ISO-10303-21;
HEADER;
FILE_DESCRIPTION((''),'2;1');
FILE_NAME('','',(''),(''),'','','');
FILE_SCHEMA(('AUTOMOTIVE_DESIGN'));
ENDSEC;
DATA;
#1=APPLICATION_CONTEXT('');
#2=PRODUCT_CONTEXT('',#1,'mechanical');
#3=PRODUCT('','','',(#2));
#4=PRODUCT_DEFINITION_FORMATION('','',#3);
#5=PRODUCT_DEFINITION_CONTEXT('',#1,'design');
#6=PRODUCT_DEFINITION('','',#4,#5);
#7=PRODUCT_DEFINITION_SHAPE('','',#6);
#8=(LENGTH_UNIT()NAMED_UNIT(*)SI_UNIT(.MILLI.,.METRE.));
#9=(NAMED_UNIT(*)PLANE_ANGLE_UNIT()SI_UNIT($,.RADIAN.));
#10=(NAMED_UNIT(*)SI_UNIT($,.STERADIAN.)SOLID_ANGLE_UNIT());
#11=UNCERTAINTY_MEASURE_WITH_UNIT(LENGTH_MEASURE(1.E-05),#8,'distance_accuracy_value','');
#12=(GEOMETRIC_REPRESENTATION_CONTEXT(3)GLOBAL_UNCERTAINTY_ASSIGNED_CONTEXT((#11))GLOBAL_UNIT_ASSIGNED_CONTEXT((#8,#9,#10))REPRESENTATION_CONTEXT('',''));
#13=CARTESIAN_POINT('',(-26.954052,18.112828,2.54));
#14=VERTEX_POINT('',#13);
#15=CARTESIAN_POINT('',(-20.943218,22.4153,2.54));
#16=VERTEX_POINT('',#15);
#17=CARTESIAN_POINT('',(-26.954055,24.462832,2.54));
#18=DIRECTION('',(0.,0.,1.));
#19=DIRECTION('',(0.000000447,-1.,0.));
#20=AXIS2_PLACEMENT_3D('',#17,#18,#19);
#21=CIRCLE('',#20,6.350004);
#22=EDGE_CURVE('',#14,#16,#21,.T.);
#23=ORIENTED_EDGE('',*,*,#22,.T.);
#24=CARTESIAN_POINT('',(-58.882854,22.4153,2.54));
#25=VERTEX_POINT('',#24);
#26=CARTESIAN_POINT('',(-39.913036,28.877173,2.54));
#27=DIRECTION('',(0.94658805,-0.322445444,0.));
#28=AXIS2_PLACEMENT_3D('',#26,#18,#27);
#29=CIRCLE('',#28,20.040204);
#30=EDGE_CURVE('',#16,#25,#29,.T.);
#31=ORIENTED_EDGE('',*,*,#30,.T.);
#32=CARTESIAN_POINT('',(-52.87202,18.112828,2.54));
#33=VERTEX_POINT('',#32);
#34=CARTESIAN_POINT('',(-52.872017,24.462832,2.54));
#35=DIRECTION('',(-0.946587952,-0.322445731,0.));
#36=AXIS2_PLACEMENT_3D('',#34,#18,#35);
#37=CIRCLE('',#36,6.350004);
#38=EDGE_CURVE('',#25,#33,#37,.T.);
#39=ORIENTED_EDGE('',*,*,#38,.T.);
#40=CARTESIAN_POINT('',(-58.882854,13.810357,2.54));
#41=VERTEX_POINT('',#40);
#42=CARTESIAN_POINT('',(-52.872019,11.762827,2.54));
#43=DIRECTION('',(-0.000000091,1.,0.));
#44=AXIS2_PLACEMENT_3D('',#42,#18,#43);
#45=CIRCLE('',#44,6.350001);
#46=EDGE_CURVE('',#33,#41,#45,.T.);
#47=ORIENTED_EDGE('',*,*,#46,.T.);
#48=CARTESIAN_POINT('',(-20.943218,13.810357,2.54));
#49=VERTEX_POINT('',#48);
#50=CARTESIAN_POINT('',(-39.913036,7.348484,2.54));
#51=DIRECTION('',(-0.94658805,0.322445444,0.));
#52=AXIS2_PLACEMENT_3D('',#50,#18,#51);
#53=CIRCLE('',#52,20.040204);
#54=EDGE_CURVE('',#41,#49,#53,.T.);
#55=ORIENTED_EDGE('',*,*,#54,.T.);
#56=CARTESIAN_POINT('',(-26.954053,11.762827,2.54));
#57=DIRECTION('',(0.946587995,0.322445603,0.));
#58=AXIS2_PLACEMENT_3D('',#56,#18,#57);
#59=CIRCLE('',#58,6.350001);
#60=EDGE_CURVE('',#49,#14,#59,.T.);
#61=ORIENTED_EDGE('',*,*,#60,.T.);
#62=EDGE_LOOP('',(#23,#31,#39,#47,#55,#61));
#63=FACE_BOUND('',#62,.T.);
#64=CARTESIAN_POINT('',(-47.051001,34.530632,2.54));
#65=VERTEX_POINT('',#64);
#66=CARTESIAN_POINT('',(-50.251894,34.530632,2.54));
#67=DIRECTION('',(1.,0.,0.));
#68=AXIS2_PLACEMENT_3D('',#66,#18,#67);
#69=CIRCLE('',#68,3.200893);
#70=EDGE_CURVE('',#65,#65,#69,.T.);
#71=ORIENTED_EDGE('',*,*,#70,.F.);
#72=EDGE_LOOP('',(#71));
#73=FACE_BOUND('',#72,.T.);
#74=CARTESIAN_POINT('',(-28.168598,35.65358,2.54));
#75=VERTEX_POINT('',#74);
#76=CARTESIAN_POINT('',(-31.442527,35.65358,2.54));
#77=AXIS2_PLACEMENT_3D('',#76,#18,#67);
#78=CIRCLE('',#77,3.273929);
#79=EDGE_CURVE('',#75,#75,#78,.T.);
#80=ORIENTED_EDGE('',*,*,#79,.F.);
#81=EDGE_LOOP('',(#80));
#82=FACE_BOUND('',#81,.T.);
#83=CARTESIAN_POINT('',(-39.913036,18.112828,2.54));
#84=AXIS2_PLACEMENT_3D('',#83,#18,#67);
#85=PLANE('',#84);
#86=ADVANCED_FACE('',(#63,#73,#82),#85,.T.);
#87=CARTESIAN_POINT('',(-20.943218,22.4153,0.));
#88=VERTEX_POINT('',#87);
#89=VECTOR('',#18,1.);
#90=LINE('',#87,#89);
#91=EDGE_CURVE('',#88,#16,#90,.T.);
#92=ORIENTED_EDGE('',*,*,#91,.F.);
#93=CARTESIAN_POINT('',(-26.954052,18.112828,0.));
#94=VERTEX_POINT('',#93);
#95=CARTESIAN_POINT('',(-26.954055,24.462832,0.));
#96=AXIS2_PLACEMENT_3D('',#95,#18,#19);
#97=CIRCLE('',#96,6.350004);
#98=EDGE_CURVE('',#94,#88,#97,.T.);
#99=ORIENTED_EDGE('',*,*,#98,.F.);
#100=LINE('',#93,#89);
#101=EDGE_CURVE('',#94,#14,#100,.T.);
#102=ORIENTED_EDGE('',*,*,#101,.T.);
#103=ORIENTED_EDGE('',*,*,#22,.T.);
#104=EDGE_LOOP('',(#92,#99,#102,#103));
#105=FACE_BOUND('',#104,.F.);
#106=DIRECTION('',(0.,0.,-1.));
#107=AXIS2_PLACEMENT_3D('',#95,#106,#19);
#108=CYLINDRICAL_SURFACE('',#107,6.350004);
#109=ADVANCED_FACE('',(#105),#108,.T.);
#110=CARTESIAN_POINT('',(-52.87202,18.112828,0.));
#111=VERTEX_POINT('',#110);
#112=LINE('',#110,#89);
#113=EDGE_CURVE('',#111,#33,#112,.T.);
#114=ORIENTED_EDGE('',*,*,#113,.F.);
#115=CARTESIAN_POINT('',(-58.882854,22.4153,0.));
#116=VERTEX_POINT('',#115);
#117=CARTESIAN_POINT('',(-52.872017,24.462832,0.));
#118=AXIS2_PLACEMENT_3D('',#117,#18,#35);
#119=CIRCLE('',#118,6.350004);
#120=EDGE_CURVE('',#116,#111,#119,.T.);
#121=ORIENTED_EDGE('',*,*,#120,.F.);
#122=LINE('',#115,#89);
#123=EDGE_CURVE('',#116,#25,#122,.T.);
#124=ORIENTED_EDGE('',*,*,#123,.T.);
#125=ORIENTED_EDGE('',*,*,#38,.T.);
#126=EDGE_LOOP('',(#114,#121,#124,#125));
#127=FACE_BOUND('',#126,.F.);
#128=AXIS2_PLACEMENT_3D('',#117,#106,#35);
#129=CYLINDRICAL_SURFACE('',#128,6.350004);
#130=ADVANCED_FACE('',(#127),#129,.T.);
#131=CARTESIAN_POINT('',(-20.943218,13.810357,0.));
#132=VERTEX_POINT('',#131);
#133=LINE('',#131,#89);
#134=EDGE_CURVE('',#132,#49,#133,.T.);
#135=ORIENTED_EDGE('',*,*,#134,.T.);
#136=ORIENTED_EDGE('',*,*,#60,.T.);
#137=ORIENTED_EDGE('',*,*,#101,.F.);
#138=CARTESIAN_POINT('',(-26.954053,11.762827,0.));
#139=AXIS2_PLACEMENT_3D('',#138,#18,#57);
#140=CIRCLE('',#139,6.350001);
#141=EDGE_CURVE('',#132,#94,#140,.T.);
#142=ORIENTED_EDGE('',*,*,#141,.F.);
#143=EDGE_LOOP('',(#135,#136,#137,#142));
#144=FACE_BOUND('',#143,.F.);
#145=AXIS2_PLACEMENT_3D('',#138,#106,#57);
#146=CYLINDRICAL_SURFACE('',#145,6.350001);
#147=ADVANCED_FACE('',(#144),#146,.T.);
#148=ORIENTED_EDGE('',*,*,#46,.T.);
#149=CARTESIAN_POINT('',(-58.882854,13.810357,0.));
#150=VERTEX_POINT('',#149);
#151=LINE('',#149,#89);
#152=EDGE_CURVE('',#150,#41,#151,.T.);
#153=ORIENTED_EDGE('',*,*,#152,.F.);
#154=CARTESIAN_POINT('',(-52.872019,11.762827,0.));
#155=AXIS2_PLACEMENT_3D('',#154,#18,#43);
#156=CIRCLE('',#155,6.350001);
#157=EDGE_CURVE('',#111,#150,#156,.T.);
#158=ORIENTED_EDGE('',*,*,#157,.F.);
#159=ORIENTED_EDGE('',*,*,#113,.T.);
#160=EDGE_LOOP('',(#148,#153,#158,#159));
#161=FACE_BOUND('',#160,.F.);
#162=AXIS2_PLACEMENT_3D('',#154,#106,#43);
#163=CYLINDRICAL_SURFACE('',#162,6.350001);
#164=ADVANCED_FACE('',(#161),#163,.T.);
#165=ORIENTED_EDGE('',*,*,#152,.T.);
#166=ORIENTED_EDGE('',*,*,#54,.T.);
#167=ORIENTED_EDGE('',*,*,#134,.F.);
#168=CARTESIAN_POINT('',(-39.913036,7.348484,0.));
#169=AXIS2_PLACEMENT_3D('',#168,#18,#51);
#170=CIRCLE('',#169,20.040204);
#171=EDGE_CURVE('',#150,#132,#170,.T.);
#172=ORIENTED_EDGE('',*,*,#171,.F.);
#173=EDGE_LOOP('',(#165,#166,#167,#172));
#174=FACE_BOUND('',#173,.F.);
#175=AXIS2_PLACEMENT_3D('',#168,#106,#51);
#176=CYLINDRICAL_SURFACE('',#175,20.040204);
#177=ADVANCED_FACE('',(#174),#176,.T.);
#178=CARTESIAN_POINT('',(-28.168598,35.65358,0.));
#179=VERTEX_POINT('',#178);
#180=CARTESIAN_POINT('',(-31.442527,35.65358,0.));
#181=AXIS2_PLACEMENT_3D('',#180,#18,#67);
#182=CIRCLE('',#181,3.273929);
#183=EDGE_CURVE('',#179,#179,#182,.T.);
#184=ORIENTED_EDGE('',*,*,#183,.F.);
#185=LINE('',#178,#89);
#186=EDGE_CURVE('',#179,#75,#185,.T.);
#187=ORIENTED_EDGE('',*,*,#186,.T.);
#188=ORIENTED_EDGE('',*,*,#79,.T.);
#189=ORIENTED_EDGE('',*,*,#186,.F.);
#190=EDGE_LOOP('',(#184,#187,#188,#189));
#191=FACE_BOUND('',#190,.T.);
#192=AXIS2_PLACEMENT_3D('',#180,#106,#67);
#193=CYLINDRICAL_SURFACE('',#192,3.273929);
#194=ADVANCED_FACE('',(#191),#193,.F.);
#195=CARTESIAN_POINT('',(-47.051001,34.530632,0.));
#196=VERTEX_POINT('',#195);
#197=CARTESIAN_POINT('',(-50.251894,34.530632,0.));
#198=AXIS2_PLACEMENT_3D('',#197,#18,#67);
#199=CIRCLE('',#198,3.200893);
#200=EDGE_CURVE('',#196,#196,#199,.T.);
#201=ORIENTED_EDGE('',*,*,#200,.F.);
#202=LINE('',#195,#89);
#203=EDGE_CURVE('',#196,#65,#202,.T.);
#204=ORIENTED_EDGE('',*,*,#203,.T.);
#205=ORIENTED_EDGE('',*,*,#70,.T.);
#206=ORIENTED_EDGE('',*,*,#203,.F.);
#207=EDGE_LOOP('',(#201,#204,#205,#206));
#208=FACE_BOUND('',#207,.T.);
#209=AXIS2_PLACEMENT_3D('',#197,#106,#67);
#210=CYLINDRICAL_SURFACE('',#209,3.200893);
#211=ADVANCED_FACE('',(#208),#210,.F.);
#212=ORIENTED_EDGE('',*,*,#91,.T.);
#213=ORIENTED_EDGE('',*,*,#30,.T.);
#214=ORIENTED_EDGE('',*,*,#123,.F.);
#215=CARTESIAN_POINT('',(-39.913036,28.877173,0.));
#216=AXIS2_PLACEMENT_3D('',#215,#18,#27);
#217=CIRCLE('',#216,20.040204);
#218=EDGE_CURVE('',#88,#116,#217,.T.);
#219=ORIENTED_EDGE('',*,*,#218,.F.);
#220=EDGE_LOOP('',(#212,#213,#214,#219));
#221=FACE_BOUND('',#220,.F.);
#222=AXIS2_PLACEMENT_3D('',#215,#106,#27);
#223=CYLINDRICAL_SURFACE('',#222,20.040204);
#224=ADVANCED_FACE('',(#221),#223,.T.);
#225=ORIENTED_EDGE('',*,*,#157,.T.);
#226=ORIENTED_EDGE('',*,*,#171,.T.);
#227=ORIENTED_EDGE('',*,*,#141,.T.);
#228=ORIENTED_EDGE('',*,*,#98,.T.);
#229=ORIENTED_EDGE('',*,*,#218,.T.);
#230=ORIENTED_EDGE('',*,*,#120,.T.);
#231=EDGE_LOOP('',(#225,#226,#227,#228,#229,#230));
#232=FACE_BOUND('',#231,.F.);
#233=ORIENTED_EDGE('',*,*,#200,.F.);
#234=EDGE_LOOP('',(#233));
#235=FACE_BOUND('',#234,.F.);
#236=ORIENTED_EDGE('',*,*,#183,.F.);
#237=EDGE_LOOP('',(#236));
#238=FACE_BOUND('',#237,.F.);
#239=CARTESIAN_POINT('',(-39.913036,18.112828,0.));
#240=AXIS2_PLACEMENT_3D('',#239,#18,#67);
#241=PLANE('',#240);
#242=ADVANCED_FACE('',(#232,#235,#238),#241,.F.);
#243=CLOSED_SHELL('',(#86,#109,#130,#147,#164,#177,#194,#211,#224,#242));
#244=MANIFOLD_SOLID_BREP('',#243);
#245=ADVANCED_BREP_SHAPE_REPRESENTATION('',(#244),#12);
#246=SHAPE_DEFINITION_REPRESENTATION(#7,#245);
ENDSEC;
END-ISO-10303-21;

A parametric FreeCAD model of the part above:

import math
import FreeCAD as App
import Part
import Sketcher

V = App.Vector
Q = App.Units.Quantity

doc = App.newDocument("Part")
body = doc.addObject("PartDesign::Body", "Body")

# Sketch on XY plane
sketch1 = body.newObject("Sketcher::SketchObject", "Sketch")
sketch1.AttachmentSupport = (doc.getObject("XY_Plane"), [""])
sketch1.MapMode = "FlatFace"
sketch1.addGeometry([
    Part.ArcOfCircle(Part.Circle(V(-52.9, 24.5, 0), V(0, 0, 1), 6.4), math.radians(-161), math.radians(-90)),  # 0
    Part.ArcOfCircle(Part.Circle(V(-52.9, 11.8, 0), V(0, 0, 1), 6.4), math.radians(90), math.radians(161)),  # 1
    Part.ArcOfCircle(Part.Circle(V(-39.9, 7.3, 0), V(0, 0, 1), 20), math.radians(161), math.radians(379)),  # 2
    Part.ArcOfCircle(Part.Circle(V(-27, 11.8, 0), V(0, 0, 1), 6.4), math.radians(19), math.radians(90)),  # 3
    Part.ArcOfCircle(Part.Circle(V(-27, 24.5, 0), V(0, 0, 1), 6.4), math.radians(-90), math.radians(-19)),  # 4
    Part.ArcOfCircle(Part.Circle(V(-39.9, 28.9, 0), V(0, 0, 1), 20), math.radians(-19), math.radians(199)),  # 5
    Part.Circle(V(-50.3, 34.5, 0), V(0, 0, 1), 3.2),  # 6
    Part.Circle(V(-31.4, 35.7, 0), V(0, 0, 1), 3.3),  # 7
], False)
sketch1.addConstraint([
    Sketcher.Constraint("Tangent", 0, 2, 1, 1),
    Sketcher.Constraint("Tangent", 1, 2, 2, 1),
    Sketcher.Constraint("Tangent", 2, 2, 3, 1),
    Sketcher.Constraint("Tangent", 3, 2, 4, 1),
    Sketcher.Constraint("Tangent", 4, 2, 5, 1),
    Sketcher.Constraint("Tangent", 5, 2, 0, 1),
    Sketcher.Constraint("Equal", 1, 3),
    Sketcher.Constraint("Equal", 0, 4),
    Sketcher.Constraint("Equal", 2, 5),
    Sketcher.Constraint("Horizontal", 1, 3, 3, 3),
    Sketcher.Constraint("Vertical", 2, 3, 5, 3),
    Sketcher.Constraint("Vertical", 1, 3, 0, 2),
    Sketcher.Constraint("Vertical", 2, 2, 4, 2),
    Sketcher.Constraint("Radius", 0, Q("0.2500001 in")),
    Sketcher.Constraint("Diameter", 6, Q("6.401786 mm")),
    Sketcher.Constraint("Diameter", 7, Q("6.547858 mm")),
    Sketcher.Constraint("Radius", 2, Q("20.040204 mm")),
    Sketcher.Constraint("DistanceY", -1, 1, 4, 2, Q("22.4153 mm")),
    Sketcher.Constraint("DistanceY", 0, 3, 6, 3, Q("10.0678 mm")),
    Sketcher.Constraint("DistanceY", -1, 1, 0, 3, Q("24.462832 mm")),
    Sketcher.Constraint("DistanceX", 1, 3, -1, 1, Q("52.872019 mm")),
    Sketcher.Constraint("DistanceY", -1, 1, 7, 3, Q("35.65358 mm")),
    Sketcher.Constraint("DistanceX", 6, 3, 5, 3, Q("10.338858 mm")),
    Sketcher.Constraint("DistanceX", 5, 3, 7, 3, Q("8.470509 mm")),
])
pad1 = body.newObject("PartDesign::Pad", "Pad")
pad1.Profile = sketch1
pad1.Length = Q("0.1 in")

doc.recompute()
